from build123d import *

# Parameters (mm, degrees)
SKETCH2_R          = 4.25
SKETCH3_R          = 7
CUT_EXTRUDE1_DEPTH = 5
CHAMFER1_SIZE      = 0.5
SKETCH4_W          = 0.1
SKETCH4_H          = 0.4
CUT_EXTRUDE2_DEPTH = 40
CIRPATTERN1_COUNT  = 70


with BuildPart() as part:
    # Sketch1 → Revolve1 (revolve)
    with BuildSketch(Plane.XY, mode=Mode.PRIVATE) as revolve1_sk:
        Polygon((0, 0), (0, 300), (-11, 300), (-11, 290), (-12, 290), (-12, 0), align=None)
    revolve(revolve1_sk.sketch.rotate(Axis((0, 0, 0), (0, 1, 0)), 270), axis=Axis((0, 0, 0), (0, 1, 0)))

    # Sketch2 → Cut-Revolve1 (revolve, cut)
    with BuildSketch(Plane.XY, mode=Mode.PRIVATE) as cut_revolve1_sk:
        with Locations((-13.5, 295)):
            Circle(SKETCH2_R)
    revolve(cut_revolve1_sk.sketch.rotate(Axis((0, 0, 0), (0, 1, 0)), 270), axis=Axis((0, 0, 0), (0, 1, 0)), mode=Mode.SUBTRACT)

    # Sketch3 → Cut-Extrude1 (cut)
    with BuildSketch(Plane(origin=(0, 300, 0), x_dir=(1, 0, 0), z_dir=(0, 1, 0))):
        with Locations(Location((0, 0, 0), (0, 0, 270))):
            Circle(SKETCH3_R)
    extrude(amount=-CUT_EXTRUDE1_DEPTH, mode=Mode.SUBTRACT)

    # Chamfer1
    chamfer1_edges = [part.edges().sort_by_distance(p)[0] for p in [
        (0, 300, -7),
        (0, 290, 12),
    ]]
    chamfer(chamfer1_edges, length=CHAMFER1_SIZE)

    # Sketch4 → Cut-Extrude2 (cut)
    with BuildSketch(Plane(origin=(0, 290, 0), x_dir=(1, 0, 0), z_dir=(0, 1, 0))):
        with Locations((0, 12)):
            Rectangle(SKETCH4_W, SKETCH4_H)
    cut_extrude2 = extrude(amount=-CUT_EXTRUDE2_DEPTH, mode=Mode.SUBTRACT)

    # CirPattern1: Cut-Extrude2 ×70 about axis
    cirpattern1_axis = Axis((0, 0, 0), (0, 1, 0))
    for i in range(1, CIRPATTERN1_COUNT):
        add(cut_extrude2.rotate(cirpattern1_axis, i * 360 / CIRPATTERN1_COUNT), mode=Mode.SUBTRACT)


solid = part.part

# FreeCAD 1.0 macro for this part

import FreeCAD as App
import Part
import Sketcher

V = App.Vector
Q = App.Units.Quantity


def edges_at(feature, points):
    """Names of the edges that pass closest to the given points."""
    edges = feature.Shape.Edges
    near = lambda p: min(range(len(edges)), key=lambda i: edges[i].distToShape(Part.Vertex(*p))[0])
    return sorted({f"Edge{near(p) + 1}" for p in points})


def add_polygon(sketch, points):
    """Adds a closed chain of lines whose ends are joined by coincident constraints."""
    first, n = sketch.GeometryCount, len(points)
    for a, b in zip(points, points[1:] + points[:1]):
        sketch.addGeometry(Part.LineSegment(App.Vector(*a, 0), App.Vector(*b, 0)), False)
    for i in range(n):
        sketch.addConstraint(Sketcher.Constraint("Coincident", first + i, 2, first + (i + 1) % n, 1))

doc = App.newDocument("Part")
body = doc.addObject("PartDesign::Body", "Body")

# Sketch on XY plane
sketch1 = doc.addObject("Sketcher::SketchObject", "Sketch")
body.addObject(sketch1)
sketch1.AttachmentSupport = (doc.XY_Plane, [""])
sketch1.MapMode = "FlatFace"
add_polygon(sketch1, [(0, 0), (0, 300), (-11, 300), (-11, 290), (-12, 290), (-12, 0)])  # lines 0-5
sketch1.addConstraint([
    Sketcher.Constraint("Vertical", 0),
    Sketcher.Constraint("Horizontal", 1),
    Sketcher.Constraint("Vertical", 2),
    Sketcher.Constraint("Horizontal", 3),
    Sketcher.Constraint("Vertical", 4),
    Sketcher.Constraint("Horizontal", 5),
    Sketcher.Constraint("Coincident", 5, 2, -1, 1),
    Sketcher.Constraint("DistanceX", 1, 2, 1, 1, Q("11 mm")),
    Sketcher.Constraint("DistanceX", 3, 2, 3, 1, Q("1 mm")),
    Sketcher.Constraint("DistanceY", 0, 1, 0, 2, Q("300 mm")),
    Sketcher.Constraint("DistanceY", 2, 2, 2, 1, Q("10 mm")),
])
revolution = doc.addObject("PartDesign::Revolution", "Revolution")
body.addObject(revolution)
revolution.Profile = sketch1
revolution.ReferenceAxis = (sketch1, ["V_Axis"])
revolution.Angle = 360

# Sketch on XY plane
sketch2 = doc.addObject("Sketcher::SketchObject", "Sketch001")
body.addObject(sketch2)
sketch2.AttachmentSupport = (doc.XY_Plane, [""])
sketch2.MapMode = "FlatFace"
sketch2.addGeometry(Part.Circle(V(-13.5, 295, 0), V(0, 0, 1), 4.2), False)
sketch2.addConstraint([
    Sketcher.Constraint("Diameter", 0, Q("8.5 mm")),
    Sketcher.Constraint("DistanceY", -1, 1, 0, 3, Q("295 mm")),
    Sketcher.Constraint("DistanceX", 0, 3, -1, 1, Q("13.5 mm")),
])
groove = doc.addObject("PartDesign::Groove", "Groove")
body.addObject(groove)
groove.Profile = sketch2
groove.ReferenceAxis = (sketch2, ["V_Axis"])
groove.Angle = 360

# Sketch on XZ plane
sketch3 = doc.addObject("Sketcher::SketchObject", "Sketch002")
body.addObject(sketch3)
sketch3.AttachmentSupport = (doc.XZ_Plane, [""])
sketch3.MapMode = "FlatFace"
sketch3.AttachmentOffset = App.Placement(V(0, 0, -300), App.Rotation())
sketch3.addGeometry(Part.Circle(V(0, 0, 0), V(0, 0, 1), 7), False)
sketch3.addConstraint([
    Sketcher.Constraint("Coincident", 0, 3, -1, 1),
    Sketcher.Constraint("Diameter", 0, Q("14 mm")),
])
pocket1 = doc.addObject("PartDesign::Pocket", "Pocket")
body.addObject(pocket1)
pocket1.Profile = sketch3
pocket1.Length = 5
pocket1.Reversed = True
doc.recompute()

chamfer = doc.addObject("PartDesign::Chamfer", "Chamfer")
body.addObject(chamfer)
chamfer.Base = (pocket1, edges_at(pocket1, [(0, 300, -7), (0, 290, 12)]))
chamfer.Size = 0.5

# Sketch on XZ plane
sketch4 = doc.addObject("Sketcher::SketchObject", "Sketch003")
body.addObject(sketch4)
sketch4.AttachmentSupport = (doc.XZ_Plane, [""])
sketch4.MapMode = "FlatFace"
sketch4.AttachmentOffset = App.Placement(V(0, 0, -290), App.Rotation())
add_polygon(sketch4, [(-0.05, -12.2), (-0.05, -11.8), (0.05, -11.8), (0.05, -12.2)])  # lines 0-3
sketch4.addConstraint([
    Sketcher.Constraint("Vertical", 0),
    Sketcher.Constraint("Horizontal", 1),
    Sketcher.Constraint("Vertical", 2),
    Sketcher.Constraint("Horizontal", 3),
    Sketcher.Constraint("DistanceX", 1, 1, 1, 2, Q("0.1 mm")),
    Sketcher.Constraint("DistanceY", 0, 1, 0, 2, Q("0.4 mm")),
    Sketcher.Constraint("DistanceY", 0, 2, -1, 1, Q("11.8 mm")),
    Sketcher.Constraint("DistanceX", 0, 2, -1, 1, Q("0.05 mm")),
])
pocket2 = doc.addObject("PartDesign::Pocket", "Pocket001")
body.addObject(pocket2)
pocket2.Profile = sketch4
pocket2.Length = 40
pocket2.Reversed = True
doc.recompute()

polarpattern = doc.addObject("PartDesign::PolarPattern", "PolarPattern")
body.addObject(polarpattern)
polarpattern.Originals = [pocket2]
polarpattern.Axis = (doc.Y_Axis, [""])
polarpattern.Angle = 360
polarpattern.Occurrences = 70
body.Tip = polarpattern

doc.recompute()
